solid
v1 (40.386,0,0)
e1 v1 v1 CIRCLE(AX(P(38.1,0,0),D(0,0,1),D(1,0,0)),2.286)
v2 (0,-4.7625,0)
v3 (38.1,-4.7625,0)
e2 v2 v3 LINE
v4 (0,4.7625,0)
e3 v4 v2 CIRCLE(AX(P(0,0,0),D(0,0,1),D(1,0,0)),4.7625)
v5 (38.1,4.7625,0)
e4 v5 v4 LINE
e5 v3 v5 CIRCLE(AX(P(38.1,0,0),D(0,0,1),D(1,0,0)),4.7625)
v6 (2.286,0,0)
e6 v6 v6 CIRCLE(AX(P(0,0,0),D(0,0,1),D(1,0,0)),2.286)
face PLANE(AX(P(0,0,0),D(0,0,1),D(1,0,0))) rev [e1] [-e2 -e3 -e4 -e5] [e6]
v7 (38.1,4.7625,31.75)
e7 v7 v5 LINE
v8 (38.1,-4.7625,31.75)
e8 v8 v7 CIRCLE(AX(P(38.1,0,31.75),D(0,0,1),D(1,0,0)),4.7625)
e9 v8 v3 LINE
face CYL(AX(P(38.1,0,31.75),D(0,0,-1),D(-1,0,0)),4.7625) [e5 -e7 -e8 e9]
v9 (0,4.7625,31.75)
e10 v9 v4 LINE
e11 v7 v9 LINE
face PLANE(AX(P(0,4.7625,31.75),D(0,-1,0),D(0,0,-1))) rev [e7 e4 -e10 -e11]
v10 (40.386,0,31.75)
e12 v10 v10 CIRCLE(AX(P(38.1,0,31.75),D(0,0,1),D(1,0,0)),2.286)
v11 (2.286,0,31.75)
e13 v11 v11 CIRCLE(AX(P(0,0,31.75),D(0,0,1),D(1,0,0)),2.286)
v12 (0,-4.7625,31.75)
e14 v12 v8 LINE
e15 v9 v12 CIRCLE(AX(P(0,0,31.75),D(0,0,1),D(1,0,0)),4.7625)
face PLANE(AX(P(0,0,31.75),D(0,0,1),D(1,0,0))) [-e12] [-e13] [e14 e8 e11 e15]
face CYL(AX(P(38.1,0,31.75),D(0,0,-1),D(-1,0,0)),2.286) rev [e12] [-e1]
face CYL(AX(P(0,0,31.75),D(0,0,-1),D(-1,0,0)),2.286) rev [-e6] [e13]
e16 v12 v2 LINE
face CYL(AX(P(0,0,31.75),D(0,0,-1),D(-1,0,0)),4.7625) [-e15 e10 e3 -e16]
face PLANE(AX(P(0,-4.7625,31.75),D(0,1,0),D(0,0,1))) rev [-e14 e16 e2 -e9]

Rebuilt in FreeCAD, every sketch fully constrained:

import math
import FreeCAD as App
import Part
import Sketcher
from FreeCAD import Vector
Q = App.Units.Quantity

doc = App.newDocument("Part")
body = doc.addObject("PartDesign::Body", "Body")

# Sketch on XY plane
sketch1 = body.newObject("Sketcher::SketchObject", "Sketch")
sketch1.AttachmentSupport = (doc.getObject("XY_Plane"), [""])
sketch1.MapMode = "FlatFace"
sketch1.addGeometry([
    Part.LineSegment(Vector(38.1, 4.8, 0), Vector(0, 4.8, 0)),  # 0
    Part.ArcOfCircle(Part.Circle(Vector(0, 0, 0), Vector(0, 0, 1), 4.8), math.radians(90), math.radians(270)),  # 1
    Part.LineSegment(Vector(0, -4.8, 0), Vector(38.1, -4.8, 0)),  # 2
    Part.ArcOfCircle(Part.Circle(Vector(38.1, 0, 0), Vector(0, 0, 1), 4.8), math.radians(-90), math.radians(90)),  # 3
    Part.Circle(Vector(38.1, 0, 0), Vector(0, 0, 1), 2.3),  # 4
    Part.Circle(Vector(0, 0, 0), Vector(0, 0, 1), 2.3),  # 5
], False)
sketch1.addConstraint([
    Sketcher.Constraint("Tangent", 0, 2, 1, 1),
    Sketcher.Constraint("Tangent", 1, 2, 2, 1),
    Sketcher.Constraint("Tangent", 2, 2, 3, 1),
    Sketcher.Constraint("Tangent", 3, 2, 0, 1),
    Sketcher.Constraint("Horizontal", 0),
    Sketcher.Constraint("Horizontal", 2),
    Sketcher.Constraint("Coincident", 1, 3, -1, 1),
    Sketcher.Constraint("Coincident", 5, 3, -1, 1),
    Sketcher.Constraint("Coincident", 4, 3, 3, 3),
    Sketcher.Constraint("Equal", 4, 5),
    Sketcher.Constraint("Diameter", 4, Q("0.18 in")),
    Sketcher.Constraint("DistanceX", 0, 2, 0, 1, Q("1.5 in")),
    Sketcher.Constraint("Radius", 1, Q("0.1875 in")),
])
pad1 = body.newObject("PartDesign::Pad", "Pad")
pad1.Profile = sketch1
pad1.Length = Q("1.25 in")

doc.recompute()
